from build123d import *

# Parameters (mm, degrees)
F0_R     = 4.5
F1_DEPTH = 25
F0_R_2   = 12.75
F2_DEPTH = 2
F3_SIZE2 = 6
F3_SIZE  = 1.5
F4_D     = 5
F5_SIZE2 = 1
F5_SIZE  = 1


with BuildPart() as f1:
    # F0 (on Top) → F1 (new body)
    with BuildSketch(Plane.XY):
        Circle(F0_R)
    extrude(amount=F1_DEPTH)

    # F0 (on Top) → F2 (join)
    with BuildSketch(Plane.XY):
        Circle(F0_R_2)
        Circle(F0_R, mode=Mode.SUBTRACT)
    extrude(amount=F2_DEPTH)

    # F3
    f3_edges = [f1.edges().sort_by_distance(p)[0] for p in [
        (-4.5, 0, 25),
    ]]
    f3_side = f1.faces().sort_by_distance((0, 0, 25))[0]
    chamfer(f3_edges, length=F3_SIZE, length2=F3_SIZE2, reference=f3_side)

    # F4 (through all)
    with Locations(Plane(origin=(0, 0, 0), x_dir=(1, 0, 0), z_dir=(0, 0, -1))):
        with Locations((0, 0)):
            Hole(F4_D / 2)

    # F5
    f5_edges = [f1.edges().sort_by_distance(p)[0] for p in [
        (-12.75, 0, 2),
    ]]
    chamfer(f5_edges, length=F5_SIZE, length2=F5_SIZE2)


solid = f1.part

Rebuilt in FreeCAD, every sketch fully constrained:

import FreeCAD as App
import Part
import Sketcher
from FreeCAD import Vector


def edges_at(feature, points):
    """Names of the edges that pass closest to the given points."""
    edges = feature.Shape.Edges
    near = lambda p: min(range(len(edges)), key=lambda i: edges[i].distToShape(Part.Vertex(*p))[0])
    return sorted({f"Edge{near(p) + 1}" for p in points})

doc = App.newDocument("Part")
body = doc.addObject("PartDesign::Body", "Body")

# Sketch on XY plane
sketch1 = doc.addObject("Sketcher::SketchObject", "Sketch")
body.addObject(sketch1)
sketch1.AttachmentSupport = (doc.XY_Plane, [""])
sketch1.MapMode = "FlatFace"
sketch1.addGeometry(Part.Circle(Vector(0, 0, 0), Vector(0, 0, 1), 4.5), False)
sketch1.addConstraint(Sketcher.Constraint("Coincident", 0, 3, -1, 1))
sketch1.addConstraint(Sketcher.Constraint("Diameter", 0, 9.0))
pad1 = doc.addObject("PartDesign::Pad", "Pad")
body.addObject(pad1)
pad1.Profile = sketch1
pad1.Length = 25

# Sketch on XY plane
sketch2 = doc.addObject("Sketcher::SketchObject", "Sketch001")
body.addObject(sketch2)
sketch2.AttachmentSupport = (doc.XY_Plane, [""])
sketch2.MapMode = "FlatFace"
sketch2.addGeometry(Part.Circle(Vector(0, 0, 0), Vector(0, 0, 1), 12.75), False)
sketch2.addGeometry(Part.Circle(Vector(0, 0, 0), Vector(0, 0, 1), 4.5), False)
sketch2.addConstraint(Sketcher.Constraint("Coincident", 0, 3, -1, 1))
sketch2.addConstraint(Sketcher.Constraint("Coincident", 1, 3, -1, 1))
sketch2.addConstraint(Sketcher.Constraint("Diameter", 1, 9.0))
sketch2.addConstraint(Sketcher.Constraint("Diameter", 0, 25.5))
pad2 = doc.addObject("PartDesign::Pad", "Pad001")
body.addObject(pad2)
pad2.Profile = sketch2
pad2.Length = 2
doc.recompute()

chamfer = doc.addObject("PartDesign::Chamfer", "Chamfer")
body.addObject(chamfer)
chamfer.Base = (pad2, edges_at(pad2, [(-4.5, 0, 25)]))
chamfer.ChamferType = "Two distances"
chamfer.Size = 1.5
chamfer.Size2 = 6
chamfer.FlipDirection = True

# Sketch on XY plane
sketch3 = doc.addObject("Sketcher::SketchObject", "Sketch002")
body.addObject(sketch3)
sketch3.AttachmentSupport = (doc.XY_Plane, [""])
sketch3.MapMode = "FlatFace"
sketch3.addGeometry(Part.Circle(Vector(0, 0, 0), Vector(0, 0, 1), 2.5), False)
sketch3.addConstraint(Sketcher.Constraint("Coincident", 0, 3, -1, 1))
sketch3.addConstraint(Sketcher.Constraint("Diameter", 0, 5.0))
doc.recompute()
hole = doc.addObject("PartDesign::Hole", "Hole")
body.addObject(hole)
hole.Profile = sketch3
hole.ThreadType = "None"
hole.Diameter = 5
hole.DepthType = "ThroughAll"
hole.Reversed = True
doc.recompute()

chamfer2 = doc.addObject("PartDesign::Chamfer", "Chamfer001")
body.addObject(chamfer2)
chamfer2.Base = (hole, edges_at(hole, [(-12.75, 0, 2)]))
chamfer2.ChamferType = "Two distances"
chamfer2.Size = 1
chamfer2.Size2 = 1

doc.recompute()
